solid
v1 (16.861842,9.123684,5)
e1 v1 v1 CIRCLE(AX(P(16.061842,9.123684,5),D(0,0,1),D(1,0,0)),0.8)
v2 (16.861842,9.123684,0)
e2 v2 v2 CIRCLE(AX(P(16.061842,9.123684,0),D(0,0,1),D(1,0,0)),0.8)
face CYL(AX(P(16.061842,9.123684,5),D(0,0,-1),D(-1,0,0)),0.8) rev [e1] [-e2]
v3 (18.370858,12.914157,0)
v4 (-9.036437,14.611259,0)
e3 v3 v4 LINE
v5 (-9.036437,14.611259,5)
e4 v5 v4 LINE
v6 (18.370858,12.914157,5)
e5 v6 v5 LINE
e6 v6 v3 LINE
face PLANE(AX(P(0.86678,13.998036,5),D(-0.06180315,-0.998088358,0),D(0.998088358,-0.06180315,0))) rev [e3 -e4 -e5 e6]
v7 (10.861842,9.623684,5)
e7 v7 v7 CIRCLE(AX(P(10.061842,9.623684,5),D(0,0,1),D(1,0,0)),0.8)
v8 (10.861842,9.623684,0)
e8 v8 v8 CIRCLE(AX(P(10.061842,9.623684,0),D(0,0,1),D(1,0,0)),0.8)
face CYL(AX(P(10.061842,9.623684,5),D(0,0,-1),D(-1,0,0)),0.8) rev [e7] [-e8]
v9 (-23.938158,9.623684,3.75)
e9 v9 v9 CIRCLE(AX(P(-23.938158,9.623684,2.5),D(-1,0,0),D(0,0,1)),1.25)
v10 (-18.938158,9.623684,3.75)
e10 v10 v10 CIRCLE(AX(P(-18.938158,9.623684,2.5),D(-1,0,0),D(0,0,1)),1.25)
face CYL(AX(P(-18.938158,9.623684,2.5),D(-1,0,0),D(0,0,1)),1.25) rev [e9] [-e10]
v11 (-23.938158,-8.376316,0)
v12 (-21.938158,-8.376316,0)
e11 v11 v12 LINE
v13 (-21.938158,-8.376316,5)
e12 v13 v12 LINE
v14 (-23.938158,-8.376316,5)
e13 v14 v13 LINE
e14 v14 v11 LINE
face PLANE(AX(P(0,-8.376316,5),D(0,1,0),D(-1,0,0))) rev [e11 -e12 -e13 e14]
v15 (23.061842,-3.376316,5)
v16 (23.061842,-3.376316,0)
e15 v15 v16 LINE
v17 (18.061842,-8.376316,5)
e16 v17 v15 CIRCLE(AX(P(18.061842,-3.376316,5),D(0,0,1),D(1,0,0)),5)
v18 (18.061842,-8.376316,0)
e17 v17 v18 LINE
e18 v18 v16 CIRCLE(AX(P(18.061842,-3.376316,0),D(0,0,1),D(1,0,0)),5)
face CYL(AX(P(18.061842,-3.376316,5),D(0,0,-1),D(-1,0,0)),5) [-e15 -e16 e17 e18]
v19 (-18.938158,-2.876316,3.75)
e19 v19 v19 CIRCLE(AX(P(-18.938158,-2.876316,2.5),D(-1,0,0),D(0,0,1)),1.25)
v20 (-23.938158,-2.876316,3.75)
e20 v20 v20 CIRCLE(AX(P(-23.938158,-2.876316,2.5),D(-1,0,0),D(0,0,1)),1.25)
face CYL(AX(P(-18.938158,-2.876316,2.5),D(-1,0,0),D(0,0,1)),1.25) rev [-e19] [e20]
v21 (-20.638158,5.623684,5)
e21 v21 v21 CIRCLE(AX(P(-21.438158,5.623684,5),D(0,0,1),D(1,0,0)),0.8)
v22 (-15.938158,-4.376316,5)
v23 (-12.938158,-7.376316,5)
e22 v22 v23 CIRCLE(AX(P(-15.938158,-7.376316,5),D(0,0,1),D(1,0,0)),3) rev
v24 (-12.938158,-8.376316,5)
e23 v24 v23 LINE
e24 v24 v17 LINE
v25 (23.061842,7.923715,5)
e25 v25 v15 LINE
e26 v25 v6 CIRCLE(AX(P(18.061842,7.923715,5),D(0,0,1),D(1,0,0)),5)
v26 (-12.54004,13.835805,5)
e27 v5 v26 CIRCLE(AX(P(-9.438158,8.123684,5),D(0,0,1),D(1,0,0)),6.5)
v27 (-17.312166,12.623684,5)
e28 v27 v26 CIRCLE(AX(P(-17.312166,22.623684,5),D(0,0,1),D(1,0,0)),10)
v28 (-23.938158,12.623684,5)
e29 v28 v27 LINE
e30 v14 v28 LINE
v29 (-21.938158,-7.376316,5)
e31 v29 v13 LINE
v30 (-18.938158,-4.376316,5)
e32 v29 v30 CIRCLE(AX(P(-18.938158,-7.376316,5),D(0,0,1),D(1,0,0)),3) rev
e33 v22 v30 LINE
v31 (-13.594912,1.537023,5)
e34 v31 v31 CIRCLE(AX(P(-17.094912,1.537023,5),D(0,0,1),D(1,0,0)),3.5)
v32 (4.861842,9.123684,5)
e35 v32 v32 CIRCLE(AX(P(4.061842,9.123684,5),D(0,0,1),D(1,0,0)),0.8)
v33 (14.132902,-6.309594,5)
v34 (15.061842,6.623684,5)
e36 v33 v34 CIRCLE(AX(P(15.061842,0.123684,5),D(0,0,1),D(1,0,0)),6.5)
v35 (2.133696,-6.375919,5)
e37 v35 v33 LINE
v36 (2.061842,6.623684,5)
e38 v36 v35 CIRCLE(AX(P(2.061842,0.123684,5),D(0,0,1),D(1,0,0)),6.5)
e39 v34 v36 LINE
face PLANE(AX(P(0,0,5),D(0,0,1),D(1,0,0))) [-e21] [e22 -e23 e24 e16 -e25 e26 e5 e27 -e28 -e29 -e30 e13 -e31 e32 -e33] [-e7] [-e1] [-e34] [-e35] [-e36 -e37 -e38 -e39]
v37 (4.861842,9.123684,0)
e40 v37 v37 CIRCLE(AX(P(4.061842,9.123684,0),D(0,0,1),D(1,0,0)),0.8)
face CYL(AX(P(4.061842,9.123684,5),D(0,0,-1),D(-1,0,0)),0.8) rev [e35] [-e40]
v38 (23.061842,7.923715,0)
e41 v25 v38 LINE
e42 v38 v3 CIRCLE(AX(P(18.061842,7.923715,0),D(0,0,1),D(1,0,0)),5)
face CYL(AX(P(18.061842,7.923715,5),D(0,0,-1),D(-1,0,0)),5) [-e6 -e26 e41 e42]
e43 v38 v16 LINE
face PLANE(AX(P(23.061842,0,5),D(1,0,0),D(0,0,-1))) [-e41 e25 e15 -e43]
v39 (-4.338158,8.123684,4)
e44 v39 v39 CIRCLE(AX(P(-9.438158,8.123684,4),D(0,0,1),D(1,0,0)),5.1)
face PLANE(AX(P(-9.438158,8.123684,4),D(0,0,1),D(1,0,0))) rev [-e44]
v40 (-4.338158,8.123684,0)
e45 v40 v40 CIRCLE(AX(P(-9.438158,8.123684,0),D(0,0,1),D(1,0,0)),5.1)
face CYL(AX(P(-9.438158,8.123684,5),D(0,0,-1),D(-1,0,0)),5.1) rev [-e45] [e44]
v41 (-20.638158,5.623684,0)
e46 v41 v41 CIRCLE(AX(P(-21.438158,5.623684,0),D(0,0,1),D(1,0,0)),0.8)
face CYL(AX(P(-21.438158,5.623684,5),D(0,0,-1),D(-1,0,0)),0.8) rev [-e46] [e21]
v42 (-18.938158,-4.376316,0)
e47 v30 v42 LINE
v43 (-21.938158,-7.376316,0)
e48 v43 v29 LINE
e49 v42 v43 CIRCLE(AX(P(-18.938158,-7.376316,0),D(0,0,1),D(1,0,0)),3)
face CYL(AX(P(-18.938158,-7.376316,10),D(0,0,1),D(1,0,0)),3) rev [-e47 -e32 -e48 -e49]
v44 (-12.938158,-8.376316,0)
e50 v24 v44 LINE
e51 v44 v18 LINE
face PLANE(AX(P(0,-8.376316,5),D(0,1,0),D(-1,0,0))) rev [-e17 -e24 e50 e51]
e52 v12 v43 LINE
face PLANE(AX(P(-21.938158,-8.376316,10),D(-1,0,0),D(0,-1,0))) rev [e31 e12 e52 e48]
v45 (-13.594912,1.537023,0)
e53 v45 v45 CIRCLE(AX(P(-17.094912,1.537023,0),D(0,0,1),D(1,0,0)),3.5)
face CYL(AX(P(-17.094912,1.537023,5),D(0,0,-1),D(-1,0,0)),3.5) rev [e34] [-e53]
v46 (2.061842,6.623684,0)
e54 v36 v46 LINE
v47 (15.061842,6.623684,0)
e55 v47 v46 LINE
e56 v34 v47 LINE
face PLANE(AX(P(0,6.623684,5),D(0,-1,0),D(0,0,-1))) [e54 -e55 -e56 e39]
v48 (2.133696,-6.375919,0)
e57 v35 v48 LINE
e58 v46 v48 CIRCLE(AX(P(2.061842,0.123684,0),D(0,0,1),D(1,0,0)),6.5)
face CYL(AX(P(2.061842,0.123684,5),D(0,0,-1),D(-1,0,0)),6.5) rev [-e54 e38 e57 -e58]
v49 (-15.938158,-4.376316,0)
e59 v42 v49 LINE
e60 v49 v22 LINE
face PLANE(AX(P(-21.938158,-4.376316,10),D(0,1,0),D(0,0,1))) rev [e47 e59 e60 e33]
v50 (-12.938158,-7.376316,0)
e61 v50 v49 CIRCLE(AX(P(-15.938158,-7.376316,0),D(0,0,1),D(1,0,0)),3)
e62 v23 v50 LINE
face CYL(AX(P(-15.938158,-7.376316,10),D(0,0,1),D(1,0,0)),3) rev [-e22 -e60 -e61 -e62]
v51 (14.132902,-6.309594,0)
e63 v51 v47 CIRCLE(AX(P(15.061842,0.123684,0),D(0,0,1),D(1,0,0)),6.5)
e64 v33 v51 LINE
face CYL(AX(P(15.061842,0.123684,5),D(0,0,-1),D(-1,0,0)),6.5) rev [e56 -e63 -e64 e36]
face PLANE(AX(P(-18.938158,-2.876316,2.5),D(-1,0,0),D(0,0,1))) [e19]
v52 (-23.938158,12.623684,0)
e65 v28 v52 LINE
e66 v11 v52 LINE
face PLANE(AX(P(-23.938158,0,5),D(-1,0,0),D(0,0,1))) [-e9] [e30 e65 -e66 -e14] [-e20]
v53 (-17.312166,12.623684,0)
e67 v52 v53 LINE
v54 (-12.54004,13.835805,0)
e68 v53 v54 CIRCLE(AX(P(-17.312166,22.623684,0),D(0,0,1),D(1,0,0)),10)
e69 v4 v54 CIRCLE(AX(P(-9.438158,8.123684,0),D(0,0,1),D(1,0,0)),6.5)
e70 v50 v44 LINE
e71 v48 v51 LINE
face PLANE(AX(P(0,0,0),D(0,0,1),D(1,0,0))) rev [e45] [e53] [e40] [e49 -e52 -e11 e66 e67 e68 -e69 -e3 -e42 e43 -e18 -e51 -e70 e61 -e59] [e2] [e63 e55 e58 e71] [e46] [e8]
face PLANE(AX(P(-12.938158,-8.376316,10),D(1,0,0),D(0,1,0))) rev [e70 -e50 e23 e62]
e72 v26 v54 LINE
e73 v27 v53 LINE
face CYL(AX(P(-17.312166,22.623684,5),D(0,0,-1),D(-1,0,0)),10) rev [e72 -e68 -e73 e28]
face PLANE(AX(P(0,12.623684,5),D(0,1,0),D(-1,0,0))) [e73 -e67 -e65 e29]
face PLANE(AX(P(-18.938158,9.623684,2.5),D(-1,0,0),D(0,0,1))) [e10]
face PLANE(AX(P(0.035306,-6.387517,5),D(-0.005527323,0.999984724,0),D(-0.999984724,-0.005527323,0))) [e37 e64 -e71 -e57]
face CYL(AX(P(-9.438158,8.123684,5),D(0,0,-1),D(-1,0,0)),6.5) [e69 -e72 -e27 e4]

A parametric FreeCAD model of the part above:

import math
import FreeCAD as App
import Part
import Sketcher

V = App.Vector
Q = App.Units.Quantity


def edges_at(feature, points):
    """Names of the edges that pass closest to the given points."""
    edges = feature.Shape.Edges
    near = lambda p: min(range(len(edges)), key=lambda i: edges[i].distToShape(Part.Vertex(*p))[0])
    return sorted({f"Edge{near(p) + 1}" for p in points})

doc = App.newDocument("Part")
body = doc.addObject("PartDesign::Body", "Body")

# Sketch on XY plane
sketch1 = doc.addObject("Sketcher::SketchObject", "Sketch")
body.addObject(sketch1)
sketch1.AttachmentSupport = (doc.XY_Plane, [""])
sketch1.MapMode = "FlatFace"
sketch1.addGeometry([
    Part.ArcOfCircle(Part.Circle(V(18.06, 7.92, 0), V(0, 0, 1), 5), math.radians(0), math.radians(86)),  # 0
    Part.LineSegment(V(18.37, 12.91, 0), V(-9.04, 14.61, 0)),  # 1
    Part.ArcOfCircle(Part.Circle(V(-9.44, 8.12, 0), V(0, 0, 1), 6.5), math.radians(86), math.radians(119)),  # 2
    Part.ArcOfCircle(Part.Circle(V(-17.31, 22.62, 0), V(0, 0, 1), 10), math.radians(-90), math.radians(-61)),  # 3
    Part.LineSegment(V(-17.31, 12.62, 0), V(-23.94, 12.62, 0)),  # 4
    Part.LineSegment(V(-23.94, 12.62, 0), V(-23.94, -8.38, 0)),  # 5
    Part.LineSegment(V(-23.94, -8.38, 0), V(18.06, -8.38, 0)),  # 6
    Part.ArcOfCircle(Part.Circle(V(18.06, -3.38, 0), V(0, 0, 1), 5), math.radians(-90), math.radians(0)),  # 7
    Part.LineSegment(V(23.06, -3.38, 0), V(23.06, 7.92, 0)),  # 8
    Part.LineSegment(V(14.13, -6.31, 0), V(2.13, -6.38, 0)),  # 9
    Part.LineSegment(V(2.13, -6.38, 0), V(2.06, -6.38, 0)),  # 10
    Part.ArcOfCircle(Part.Circle(V(2.06, 0.12, 0), V(0, 0, 1), 6.5), math.radians(90), math.radians(270)),  # 11
    Part.LineSegment(V(2.06, 6.62, 0), V(15.06, 6.62, 0)),  # 12
    Part.ArcOfCircle(Part.Circle(V(15.06, 0.12, 0), V(0, 0, 1), 6.5), math.radians(-81), math.radians(90)),  # 13
    Part.ArcOfCircle(Part.Circle(V(15.06, 0.12, 0), V(0, 0, 1), 6.5), math.radians(-98.22), math.radians(-81.15)),  # 14
    Part.Circle(V(16.06, 9.12, 0), V(0, 0, 1), 0.8),  # 15
    Part.Circle(V(10.06, 9.62, 0), V(0, 0, 1), 0.8),  # 16
    Part.Circle(V(4.06, 9.12, 0), V(0, 0, 1), 0.8),  # 17
    Part.Circle(V(-17.09, 1.54, 0), V(0, 0, 1), 3.5),  # 18
    Part.Circle(V(-9.44, 8.12, 0), V(0, 0, 1), 5.1),  # 19
    Part.Circle(V(-21.44, 5.62, 0), V(0, 0, 1), 0.8),  # 20
], False)
sketch1.addConstraint([
    Sketcher.Constraint("Tangent", 0, 2, 1, 1),
    Sketcher.Constraint("Tangent", 1, 2, 2, 1),
    Sketcher.Constraint("Tangent", 2, 2, 3, 2),
    Sketcher.Constraint("Tangent", 3, 1, 4, 1),
    Sketcher.Constraint("Coincident", 4, 2, 5, 1),
    Sketcher.Constraint("Coincident", 5, 2, 6, 1),
    Sketcher.Constraint("Tangent", 6, 2, 7, 1),
    Sketcher.Constraint("Tangent", 7, 2, 8, 1),
    Sketcher.Constraint("Tangent", 8, 2, 0, 1),
    Sketcher.Constraint("Coincident", 9, 2, 10, 1),
    Sketcher.Constraint("Coincident", 10, 2, 11, 2),
    Sketcher.Constraint("Tangent", 11, 1, 12, 1),
    Sketcher.Constraint("Tangent", 12, 2, 13, 2),
    Sketcher.Constraint("Tangent", 13, 1, 14, 2),
    Sketcher.Constraint("Coincident", 14, 1, 9, 1),
    Sketcher.Constraint("Horizontal", 4),
    Sketcher.Constraint("Vertical", 5),
    Sketcher.Constraint("Horizontal", 6),
    Sketcher.Constraint("Vertical", 8),
    Sketcher.Constraint("Horizontal", 12),
    Sketcher.Constraint("Coincident", 19, 3, 2, 3),
    Sketcher.Constraint("Equal", 0, 7),
    Sketcher.Constraint("Equal", 2, 11),
    Sketcher.Constraint("Equal", 11, 13),
    Sketcher.Constraint("Equal", 13, 14),
    Sketcher.Constraint("Equal", 15, 16),
    Sketcher.Constraint("Equal", 16, 17),
    Sketcher.Constraint("Equal", 17, 20),
    Sketcher.Constraint("Parallel", 9, 10),
    Sketcher.Constraint("Horizontal", 15, 3, 17, 3),
    Sketcher.Constraint("Vertical", 11, 3, 10, 2),
    Sketcher.Constraint("Vertical", 15, 3, 13, 1),
    Sketcher.Constraint("Diameter", 18, Q("7 mm")),
    Sketcher.Constraint("Radius", 0, Q("5 mm")),
    Sketcher.Constraint("Radius", 3, Q("10 mm")),
    Sketcher.Constraint("Diameter", 15, Q("1.6 mm")),
    Sketcher.Constraint("Diameter", 19, Q("10.2 mm")),
    Sketcher.Constraint("Radius", 2, Q("6.5 mm")),
    Sketcher.Constraint("DistanceX", 6, 1, 6, 2, Q("42 mm")),
    Sketcher.Constraint("DistanceX", 12, 1, 12, 2, Q("13 mm")),
    Sketcher.Constraint("DistanceY", 5, 2, 5, 1, Q("21 mm")),
    Sketcher.Constraint("DistanceY", 11, 3, 2, 3, Q("8 mm")),
    Sketcher.Constraint("DistanceX", 11, 3, 7, 3, Q("16 mm")),
    Sketcher.Constraint("DistanceX", 15, 3, 0, 3, Q("2 mm")),
    Sketcher.Constraint("DistanceY", 13, 3, 15, 3, Q("9 mm")),
    Sketcher.Constraint("DistanceX", 16, 3, 15, 3, Q("6 mm")),
    Sketcher.Constraint("DistanceX", 17, 3, 16, 3, Q("6 mm")),
    Sketcher.Constraint("DistanceX", 20, 3, 19, 3, Q("12 mm")),
    Sketcher.Constraint("DistanceY", 20, 3, 3, 3, Q("17 mm")),
    Sketcher.Constraint("DistanceY", 11, 1, 16, 3, Q("3 mm")),
    Sketcher.Constraint("DistanceX", 2, 3, 0, 3, Q("27.5 mm")),
    Sketcher.Constraint("DistanceY", 2, 3, 3, 3, Q("14.5 mm")),
    Sketcher.Constraint("DistanceY", 8, 1, 8, 2, Q("11.300031 mm")),
    Sketcher.Constraint("DistanceX", -1, 1, 14, 1, Q("14.132902 mm")),
    Sketcher.Constraint("Distance", 9, Q("11.999389 mm")),
    Sketcher.Constraint("DistanceY", -1, 1, 1, 2, Q("14.611259 mm")),
    Sketcher.Constraint("DistanceX", 2, 2, -1, 1, Q("12.54004 mm")),
    Sketcher.Constraint("DistanceY", 18, 3, 2, 3, Q("6.586662 mm")),
    Sketcher.Constraint("DistanceX", 18, 3, -1, 1, Q("17.094912 mm")),
])
pad1 = doc.addObject("PartDesign::Pad", "Pad")
body.addObject(pad1)
pad1.Profile = sketch1
pad1.Length = 5

# Sketch on YZ plane
sketch2 = doc.addObject("Sketcher::SketchObject", "Sketch001")
body.addObject(sketch2)
sketch2.AttachmentSupport = (doc.YZ_Plane, [""])
sketch2.MapMode = "FlatFace"
sketch2.AttachmentOffset = App.Placement(V(0, 0, -23.938158), App.Rotation())
sketch2.addGeometry([
    Part.Circle(V(9.6, 2.5, 0), V(0, 0, 1), 1.2),
    Part.Circle(V(-2.9, 2.5, 0), V(0, 0, 1), 1.2),
], False)
sketch2.addConstraint([
    Sketcher.Constraint("Equal", 0, 1),
    Sketcher.Constraint("Horizontal", 0, 3, 1, 3),
    Sketcher.Constraint("Diameter", 0, Q("2.5 mm")),
    Sketcher.Constraint("DistanceY", -1, 1, 0, 3, Q("2.5 mm")),
    Sketcher.Constraint("DistanceX", 1, 3, 0, 3, Q("12.5 mm")),
    Sketcher.Constraint("DistanceX", -1, 1, 0, 3, Q("9.623684 mm")),
])
pocket1 = doc.addObject("PartDesign::Pocket", "Pocket")
body.addObject(pocket1)
pocket1.Profile = sketch2
pocket1.Length = 5
pocket1.Reversed = True

# Sketch on XY plane
sketch3 = doc.addObject("Sketcher::SketchObject", "Sketch002")
body.addObject(sketch3)
sketch3.AttachmentSupport = (doc.XY_Plane, [""])
sketch3.MapMode = "FlatFace"
sketch3.AttachmentOffset = App.Placement(V(0, 0, 4), App.Rotation())
sketch3.addGeometry(Part.Circle(V(-9, 8, 0), V(0, 0, 1), 5), False)
sketch3.addConstraint([
    Sketcher.Constraint("Diameter", 0, Q("10.2 mm")),
    Sketcher.Constraint("DistanceX", 0, 3, -1, 1, Q("9.438158 mm")),
    Sketcher.Constraint("DistanceY", -1, 1, 0, 3, Q("8.123684 mm")),
])
pad2 = doc.addObject("PartDesign::Pad", "Pad001")
body.addObject(pad2)
pad2.Profile = sketch3
pad2.Length = 1

# Sketch on XY plane
sketch4 = doc.addObject("Sketcher::SketchObject", "Sketch003")
body.addObject(sketch4)
sketch4.AttachmentSupport = (doc.XY_Plane, [""])
sketch4.MapMode = "FlatFace"
sketch4.addGeometry([
    Part.LineSegment(V(-21.9, -8.4, 0), V(-21.9, -4.4, 0)),
    Part.LineSegment(V(-21.9, -4.4, 0), V(-12.9, -4.4, 0)),
    Part.LineSegment(V(-12.9, -4.4, 0), V(-12.9, -8.4, 0)),
    Part.LineSegment(V(-12.9, -8.4, 0), V(-21.9, -8.4, 0)),
], False)
sketch4.addConstraint([
    Sketcher.Constraint("Coincident", 0, 2, 1, 1),
    Sketcher.Constraint("Coincident", 1, 2, 2, 1),
    Sketcher.Constraint("Coincident", 2, 2, 3, 1),
    Sketcher.Constraint("Coincident", 3, 2, 0, 1),
    Sketcher.Constraint("Vertical", 0),
    Sketcher.Constraint("Horizontal", 1),
    Sketcher.Constraint("Vertical", 2),
    Sketcher.Constraint("Horizontal", 3),
    Sketcher.Constraint("DistanceX", 1, 1, 1, 2, Q("9 mm")),
    Sketcher.Constraint("DistanceY", 0, 1, 0, 2, Q("4 mm")),
    Sketcher.Constraint("DistanceX", 0, 2, -1, 1, Q("21.938158 mm")),
    Sketcher.Constraint("DistanceY", 0, 2, -1, 1, Q("4.376316 mm")),
])
pocket2 = doc.addObject("PartDesign::Pocket", "Pocket001")
body.addObject(pocket2)
pocket2.Profile = sketch4
pocket2.Length = 10
pocket2.Reversed = True
doc.recompute()

fillet = doc.addObject("PartDesign::Fillet", "Fillet")
body.addObject(fillet)
fillet.Base = (pocket2, edges_at(pocket2, [(-12.938, -4.376, 2.5), (-21.938, -4.376, 2.5)]))
fillet.Radius = 3

doc.recompute()
